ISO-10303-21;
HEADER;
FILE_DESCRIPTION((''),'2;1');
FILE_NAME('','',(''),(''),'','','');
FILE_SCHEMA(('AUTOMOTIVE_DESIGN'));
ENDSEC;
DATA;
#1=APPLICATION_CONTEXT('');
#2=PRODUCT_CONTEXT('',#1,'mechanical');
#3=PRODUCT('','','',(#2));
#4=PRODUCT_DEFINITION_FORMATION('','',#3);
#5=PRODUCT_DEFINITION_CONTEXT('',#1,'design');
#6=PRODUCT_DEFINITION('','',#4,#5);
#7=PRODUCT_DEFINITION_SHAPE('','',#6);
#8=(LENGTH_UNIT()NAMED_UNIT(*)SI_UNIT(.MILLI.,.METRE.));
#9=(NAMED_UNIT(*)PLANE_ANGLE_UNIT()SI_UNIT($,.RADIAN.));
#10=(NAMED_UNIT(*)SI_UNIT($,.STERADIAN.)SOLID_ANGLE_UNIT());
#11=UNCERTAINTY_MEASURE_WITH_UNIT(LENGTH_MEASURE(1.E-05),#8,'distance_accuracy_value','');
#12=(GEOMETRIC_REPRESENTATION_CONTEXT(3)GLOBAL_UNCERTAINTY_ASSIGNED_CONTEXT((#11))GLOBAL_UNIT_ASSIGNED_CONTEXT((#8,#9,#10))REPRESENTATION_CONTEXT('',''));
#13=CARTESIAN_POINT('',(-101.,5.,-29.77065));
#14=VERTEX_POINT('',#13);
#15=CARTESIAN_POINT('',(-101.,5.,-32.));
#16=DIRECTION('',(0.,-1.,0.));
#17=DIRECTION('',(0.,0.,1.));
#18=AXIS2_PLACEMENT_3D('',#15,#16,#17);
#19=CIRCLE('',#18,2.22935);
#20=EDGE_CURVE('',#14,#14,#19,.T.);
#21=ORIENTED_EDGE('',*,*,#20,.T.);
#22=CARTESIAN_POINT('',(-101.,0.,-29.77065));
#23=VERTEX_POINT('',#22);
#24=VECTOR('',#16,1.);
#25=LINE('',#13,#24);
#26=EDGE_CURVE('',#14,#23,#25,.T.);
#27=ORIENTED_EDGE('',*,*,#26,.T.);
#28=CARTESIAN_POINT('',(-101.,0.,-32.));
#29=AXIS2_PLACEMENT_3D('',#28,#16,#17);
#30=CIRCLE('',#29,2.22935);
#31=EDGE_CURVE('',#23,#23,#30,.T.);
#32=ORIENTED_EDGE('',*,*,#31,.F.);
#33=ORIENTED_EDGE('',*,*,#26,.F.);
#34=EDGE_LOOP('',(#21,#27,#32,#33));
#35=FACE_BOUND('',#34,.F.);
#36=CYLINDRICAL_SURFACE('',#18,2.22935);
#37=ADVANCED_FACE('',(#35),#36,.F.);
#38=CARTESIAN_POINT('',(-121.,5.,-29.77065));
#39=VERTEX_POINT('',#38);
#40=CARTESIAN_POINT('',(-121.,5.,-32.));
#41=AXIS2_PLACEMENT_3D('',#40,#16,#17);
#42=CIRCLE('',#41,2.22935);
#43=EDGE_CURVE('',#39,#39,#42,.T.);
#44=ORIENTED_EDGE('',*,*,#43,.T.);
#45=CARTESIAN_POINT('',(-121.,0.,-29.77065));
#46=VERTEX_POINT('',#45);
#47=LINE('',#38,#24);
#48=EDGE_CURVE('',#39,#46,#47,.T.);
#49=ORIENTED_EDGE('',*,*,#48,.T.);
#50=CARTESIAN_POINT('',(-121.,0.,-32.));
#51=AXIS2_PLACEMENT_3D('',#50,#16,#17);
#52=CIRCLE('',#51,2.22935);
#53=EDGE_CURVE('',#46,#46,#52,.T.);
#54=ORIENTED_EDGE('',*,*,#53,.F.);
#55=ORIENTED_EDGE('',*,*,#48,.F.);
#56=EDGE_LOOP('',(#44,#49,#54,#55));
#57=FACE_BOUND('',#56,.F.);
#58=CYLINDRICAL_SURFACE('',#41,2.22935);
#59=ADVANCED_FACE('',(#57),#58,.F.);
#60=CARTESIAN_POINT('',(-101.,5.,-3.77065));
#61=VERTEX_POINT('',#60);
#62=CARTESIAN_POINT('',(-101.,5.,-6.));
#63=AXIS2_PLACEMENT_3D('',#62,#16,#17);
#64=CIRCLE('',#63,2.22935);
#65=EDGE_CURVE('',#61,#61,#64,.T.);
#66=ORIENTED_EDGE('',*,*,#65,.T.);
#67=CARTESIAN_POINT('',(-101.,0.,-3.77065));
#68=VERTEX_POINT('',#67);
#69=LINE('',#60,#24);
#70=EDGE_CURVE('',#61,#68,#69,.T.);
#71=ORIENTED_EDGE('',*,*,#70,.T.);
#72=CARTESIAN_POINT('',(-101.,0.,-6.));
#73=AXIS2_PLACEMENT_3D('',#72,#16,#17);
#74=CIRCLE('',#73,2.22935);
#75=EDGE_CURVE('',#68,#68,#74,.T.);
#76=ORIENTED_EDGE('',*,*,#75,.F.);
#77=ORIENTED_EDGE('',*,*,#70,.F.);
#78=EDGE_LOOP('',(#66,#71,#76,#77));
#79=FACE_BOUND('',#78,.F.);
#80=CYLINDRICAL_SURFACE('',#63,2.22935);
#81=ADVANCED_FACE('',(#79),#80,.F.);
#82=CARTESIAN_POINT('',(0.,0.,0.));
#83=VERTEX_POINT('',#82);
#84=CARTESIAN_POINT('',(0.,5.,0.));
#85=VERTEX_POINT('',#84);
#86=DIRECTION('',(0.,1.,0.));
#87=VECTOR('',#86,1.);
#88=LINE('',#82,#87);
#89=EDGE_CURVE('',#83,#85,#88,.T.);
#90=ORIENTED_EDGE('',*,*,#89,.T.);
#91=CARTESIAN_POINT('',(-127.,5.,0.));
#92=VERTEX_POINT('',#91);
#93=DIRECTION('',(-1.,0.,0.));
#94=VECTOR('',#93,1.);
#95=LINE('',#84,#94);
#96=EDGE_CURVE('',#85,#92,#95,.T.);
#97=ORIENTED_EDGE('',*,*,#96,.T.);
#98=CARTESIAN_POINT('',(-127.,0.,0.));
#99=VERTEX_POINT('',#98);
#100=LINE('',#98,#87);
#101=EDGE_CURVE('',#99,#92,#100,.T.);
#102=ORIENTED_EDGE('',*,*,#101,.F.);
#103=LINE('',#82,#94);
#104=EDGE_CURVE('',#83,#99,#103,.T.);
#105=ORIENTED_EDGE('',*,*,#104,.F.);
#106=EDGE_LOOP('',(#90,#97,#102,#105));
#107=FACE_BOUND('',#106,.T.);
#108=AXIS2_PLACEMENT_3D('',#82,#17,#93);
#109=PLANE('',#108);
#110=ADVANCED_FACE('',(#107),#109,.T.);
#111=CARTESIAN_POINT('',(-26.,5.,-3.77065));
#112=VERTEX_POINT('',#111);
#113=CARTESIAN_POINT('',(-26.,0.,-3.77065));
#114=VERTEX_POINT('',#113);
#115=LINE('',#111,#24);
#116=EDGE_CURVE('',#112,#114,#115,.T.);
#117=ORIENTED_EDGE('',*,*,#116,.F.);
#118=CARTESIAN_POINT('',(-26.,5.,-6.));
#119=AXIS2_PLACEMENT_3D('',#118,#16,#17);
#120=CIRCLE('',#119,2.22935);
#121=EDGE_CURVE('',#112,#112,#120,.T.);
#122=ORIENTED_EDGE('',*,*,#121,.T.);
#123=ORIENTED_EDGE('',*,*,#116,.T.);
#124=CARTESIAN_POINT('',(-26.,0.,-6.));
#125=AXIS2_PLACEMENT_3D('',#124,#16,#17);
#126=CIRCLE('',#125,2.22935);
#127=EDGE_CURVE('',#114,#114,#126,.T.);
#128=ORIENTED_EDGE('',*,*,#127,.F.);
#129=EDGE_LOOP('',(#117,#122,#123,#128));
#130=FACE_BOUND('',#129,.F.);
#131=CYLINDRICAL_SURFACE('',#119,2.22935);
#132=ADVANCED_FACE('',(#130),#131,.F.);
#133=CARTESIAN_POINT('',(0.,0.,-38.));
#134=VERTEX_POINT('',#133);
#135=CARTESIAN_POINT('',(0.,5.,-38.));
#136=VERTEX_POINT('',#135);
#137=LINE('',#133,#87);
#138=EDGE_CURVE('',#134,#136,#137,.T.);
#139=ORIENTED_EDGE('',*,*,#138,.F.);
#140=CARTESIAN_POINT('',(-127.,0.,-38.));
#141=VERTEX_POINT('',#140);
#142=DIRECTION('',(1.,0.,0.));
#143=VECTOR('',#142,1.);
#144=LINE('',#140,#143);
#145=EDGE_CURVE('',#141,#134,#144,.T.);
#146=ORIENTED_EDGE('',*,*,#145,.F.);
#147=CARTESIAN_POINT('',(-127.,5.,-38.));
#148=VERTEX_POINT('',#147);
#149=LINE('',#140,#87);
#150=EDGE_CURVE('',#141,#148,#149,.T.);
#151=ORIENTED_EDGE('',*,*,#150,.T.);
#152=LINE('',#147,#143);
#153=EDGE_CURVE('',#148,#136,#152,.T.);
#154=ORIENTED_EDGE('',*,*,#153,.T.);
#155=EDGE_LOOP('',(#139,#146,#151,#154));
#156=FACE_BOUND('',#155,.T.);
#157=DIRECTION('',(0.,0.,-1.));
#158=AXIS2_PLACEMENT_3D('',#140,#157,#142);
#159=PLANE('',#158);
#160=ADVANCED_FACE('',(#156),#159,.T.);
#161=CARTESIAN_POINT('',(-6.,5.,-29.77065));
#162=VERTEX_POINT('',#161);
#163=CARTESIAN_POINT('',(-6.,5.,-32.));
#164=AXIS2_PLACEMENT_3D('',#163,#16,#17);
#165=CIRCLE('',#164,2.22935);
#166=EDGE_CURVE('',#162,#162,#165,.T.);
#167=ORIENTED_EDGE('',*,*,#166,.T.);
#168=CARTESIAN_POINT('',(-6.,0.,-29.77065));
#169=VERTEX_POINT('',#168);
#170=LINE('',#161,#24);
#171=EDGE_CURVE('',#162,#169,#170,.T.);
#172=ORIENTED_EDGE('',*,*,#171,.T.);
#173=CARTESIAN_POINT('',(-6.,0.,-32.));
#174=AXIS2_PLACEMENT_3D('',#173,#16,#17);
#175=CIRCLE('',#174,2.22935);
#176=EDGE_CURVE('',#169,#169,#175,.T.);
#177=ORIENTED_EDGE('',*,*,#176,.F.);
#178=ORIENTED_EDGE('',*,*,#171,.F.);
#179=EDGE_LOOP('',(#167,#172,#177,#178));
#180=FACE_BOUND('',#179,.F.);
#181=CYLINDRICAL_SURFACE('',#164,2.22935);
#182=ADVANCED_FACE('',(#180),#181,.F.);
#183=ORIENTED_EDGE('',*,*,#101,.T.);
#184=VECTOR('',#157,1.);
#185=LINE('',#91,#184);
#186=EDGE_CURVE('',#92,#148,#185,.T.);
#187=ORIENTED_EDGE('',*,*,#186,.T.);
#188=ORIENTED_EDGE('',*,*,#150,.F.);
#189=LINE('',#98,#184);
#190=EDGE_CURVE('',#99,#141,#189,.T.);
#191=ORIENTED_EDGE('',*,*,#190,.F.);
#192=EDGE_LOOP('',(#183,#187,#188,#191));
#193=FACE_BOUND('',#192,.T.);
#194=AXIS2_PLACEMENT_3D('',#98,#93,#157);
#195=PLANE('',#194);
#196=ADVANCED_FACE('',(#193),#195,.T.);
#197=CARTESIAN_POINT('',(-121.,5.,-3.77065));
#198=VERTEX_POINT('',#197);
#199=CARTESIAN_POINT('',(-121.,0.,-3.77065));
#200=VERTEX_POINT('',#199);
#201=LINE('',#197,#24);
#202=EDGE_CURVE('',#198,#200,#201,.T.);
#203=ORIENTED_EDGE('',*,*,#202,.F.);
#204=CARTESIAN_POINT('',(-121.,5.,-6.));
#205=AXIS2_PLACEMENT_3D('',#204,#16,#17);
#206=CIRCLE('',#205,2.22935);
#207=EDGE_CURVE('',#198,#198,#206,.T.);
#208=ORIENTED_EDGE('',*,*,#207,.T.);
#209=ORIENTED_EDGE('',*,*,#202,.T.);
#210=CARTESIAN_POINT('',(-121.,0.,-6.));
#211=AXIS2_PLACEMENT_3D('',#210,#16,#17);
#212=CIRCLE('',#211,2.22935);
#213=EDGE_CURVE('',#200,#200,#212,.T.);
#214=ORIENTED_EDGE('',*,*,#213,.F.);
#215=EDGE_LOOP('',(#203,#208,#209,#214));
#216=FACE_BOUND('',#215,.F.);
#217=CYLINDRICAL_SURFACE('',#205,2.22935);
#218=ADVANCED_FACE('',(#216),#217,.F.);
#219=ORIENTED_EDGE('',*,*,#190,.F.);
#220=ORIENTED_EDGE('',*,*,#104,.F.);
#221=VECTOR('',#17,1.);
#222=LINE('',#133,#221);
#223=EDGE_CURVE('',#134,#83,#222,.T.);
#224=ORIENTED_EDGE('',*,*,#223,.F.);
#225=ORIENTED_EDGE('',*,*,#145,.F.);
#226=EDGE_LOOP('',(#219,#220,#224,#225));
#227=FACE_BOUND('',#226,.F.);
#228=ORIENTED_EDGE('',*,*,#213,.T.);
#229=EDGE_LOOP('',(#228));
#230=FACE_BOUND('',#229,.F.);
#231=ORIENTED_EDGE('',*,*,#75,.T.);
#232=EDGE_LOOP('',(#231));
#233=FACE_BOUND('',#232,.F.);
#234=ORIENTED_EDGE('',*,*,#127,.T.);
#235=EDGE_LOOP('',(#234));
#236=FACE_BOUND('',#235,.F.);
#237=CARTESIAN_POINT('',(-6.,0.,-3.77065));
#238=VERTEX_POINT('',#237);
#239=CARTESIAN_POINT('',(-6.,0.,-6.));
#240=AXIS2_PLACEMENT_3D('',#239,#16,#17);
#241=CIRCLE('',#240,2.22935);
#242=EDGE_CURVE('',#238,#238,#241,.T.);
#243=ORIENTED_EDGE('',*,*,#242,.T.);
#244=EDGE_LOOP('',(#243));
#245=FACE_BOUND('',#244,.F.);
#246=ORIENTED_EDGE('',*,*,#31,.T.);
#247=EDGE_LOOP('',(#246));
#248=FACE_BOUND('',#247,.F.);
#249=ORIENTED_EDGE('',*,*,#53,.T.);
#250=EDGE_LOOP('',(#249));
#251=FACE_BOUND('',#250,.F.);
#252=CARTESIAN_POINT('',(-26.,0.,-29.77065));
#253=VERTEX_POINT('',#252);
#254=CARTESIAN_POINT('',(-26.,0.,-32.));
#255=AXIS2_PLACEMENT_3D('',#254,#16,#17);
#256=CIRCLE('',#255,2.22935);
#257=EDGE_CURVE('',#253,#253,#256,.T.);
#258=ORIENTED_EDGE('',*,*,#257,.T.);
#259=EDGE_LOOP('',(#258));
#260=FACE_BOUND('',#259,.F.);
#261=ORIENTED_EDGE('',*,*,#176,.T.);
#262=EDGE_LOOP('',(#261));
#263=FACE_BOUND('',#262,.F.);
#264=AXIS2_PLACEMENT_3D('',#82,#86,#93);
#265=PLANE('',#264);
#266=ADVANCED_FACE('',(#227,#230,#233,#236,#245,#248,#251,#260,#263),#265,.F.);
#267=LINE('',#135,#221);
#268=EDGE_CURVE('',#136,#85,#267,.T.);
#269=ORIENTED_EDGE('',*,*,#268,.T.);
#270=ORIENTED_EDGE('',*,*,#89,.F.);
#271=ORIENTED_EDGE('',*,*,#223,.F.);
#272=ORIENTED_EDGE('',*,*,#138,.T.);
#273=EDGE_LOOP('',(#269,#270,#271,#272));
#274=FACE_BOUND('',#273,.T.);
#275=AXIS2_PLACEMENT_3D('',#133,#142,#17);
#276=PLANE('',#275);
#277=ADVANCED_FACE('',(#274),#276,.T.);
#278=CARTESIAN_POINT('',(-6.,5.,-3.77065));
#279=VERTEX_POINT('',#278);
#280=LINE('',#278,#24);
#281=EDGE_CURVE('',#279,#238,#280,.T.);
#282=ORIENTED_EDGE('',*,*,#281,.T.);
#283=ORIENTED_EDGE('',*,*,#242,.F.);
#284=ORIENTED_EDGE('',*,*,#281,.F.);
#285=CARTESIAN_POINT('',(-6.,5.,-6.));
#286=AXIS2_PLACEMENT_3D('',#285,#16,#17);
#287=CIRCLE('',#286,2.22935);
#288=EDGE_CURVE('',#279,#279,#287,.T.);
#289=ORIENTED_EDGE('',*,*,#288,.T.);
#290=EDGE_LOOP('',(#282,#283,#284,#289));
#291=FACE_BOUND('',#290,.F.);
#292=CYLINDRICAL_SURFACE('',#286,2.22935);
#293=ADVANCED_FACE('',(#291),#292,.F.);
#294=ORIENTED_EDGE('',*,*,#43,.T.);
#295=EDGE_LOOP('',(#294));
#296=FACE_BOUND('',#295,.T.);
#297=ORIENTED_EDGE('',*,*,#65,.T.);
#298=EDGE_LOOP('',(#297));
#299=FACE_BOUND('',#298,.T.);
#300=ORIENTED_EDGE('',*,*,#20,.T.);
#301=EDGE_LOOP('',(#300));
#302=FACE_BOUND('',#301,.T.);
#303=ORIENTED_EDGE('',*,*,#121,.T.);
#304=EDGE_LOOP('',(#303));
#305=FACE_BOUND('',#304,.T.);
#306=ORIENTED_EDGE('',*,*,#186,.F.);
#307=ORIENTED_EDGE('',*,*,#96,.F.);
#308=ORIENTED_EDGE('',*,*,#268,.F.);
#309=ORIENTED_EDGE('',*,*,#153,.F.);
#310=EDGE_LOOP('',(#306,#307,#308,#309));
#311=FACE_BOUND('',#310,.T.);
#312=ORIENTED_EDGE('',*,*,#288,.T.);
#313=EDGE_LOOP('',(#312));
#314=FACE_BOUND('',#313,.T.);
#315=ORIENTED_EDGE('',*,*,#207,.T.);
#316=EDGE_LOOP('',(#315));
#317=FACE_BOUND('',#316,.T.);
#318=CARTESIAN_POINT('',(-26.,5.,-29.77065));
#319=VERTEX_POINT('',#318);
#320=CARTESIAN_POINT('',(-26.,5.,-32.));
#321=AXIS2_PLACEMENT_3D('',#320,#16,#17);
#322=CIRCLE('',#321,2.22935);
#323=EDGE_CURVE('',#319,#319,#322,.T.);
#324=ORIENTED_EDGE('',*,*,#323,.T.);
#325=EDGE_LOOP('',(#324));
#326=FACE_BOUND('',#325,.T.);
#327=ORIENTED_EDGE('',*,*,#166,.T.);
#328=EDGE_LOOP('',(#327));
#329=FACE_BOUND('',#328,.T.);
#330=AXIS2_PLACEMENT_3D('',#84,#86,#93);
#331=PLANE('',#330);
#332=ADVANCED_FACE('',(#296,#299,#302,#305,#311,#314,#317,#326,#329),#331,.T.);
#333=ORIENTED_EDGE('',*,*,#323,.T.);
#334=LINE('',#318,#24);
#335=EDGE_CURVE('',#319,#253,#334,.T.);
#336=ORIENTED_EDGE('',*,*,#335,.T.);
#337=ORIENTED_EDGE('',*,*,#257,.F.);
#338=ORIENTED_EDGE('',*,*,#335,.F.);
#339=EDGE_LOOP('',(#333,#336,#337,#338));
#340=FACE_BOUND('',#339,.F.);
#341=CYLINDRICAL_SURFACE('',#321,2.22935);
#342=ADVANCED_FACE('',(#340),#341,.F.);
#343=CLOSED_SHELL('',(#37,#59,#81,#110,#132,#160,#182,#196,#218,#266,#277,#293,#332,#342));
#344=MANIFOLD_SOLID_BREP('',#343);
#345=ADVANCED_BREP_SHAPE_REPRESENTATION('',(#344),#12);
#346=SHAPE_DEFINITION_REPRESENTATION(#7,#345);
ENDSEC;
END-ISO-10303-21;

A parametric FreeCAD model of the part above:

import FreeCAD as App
import Part
import Sketcher

doc = App.newDocument("Part")
body = doc.addObject("PartDesign::Body", "Body")

sketch1 = doc.addObject("Sketcher::SketchObject", "Sketch")
body.addObject(sketch1)
sketch1.AttachmentSupport = (doc.XZ_Plane, [""])
sketch1.MapMode = "FlatFace"
sketch1.addGeometry(Part.LineSegment(App.Vector(-127, 0, 0), App.Vector(0, 0, 0)), False)
sketch1.addGeometry(Part.LineSegment(App.Vector(0, 0, 0), App.Vector(0, -38, 0)), False)
sketch1.addGeometry(Part.LineSegment(App.Vector(0, -38, 0), App.Vector(-127, -38, 0)), False)
sketch1.addGeometry(Part.LineSegment(App.Vector(-127, -38, 0), App.Vector(-127, 0, 0)), False)
sketch1.addConstraint(Sketcher.Constraint("Coincident", 0, 2, 1, 1))
sketch1.addConstraint(Sketcher.Constraint("Coincident", 1, 2, 2, 1))
sketch1.addConstraint(Sketcher.Constraint("Coincident", 2, 2, 3, 1))
sketch1.addConstraint(Sketcher.Constraint("Coincident", 3, 2, 0, 1))
sketch1.addConstraint(Sketcher.Constraint("Horizontal", 0))
sketch1.addConstraint(Sketcher.Constraint("Vertical", 1))
sketch1.addConstraint(Sketcher.Constraint("Horizontal", 2))
sketch1.addConstraint(Sketcher.Constraint("Vertical", 3))
sketch1.addConstraint(Sketcher.Constraint("Coincident", 0, 2, -1, 1))
sketch1.addConstraint(Sketcher.Constraint("DistanceX", 0, 1, 0, 2, 127.0))
sketch1.addConstraint(Sketcher.Constraint("DistanceY", 1, 2, 1, 1, 38.0))
pad1 = doc.addObject("PartDesign::Pad", "Pad")
body.addObject(pad1)
pad1.Profile = sketch1
pad1.Length = 5
pad1.Reversed = True

sketch2 = doc.addObject("Sketcher::SketchObject", "Sketch001")
body.addObject(sketch2)
sketch2.AttachmentSupport = (doc.XZ_Plane, [""])
sketch2.MapMode = "FlatFace"
sketch2.AttachmentOffset = App.Placement(App.Vector(0, 0, -5), App.Rotation())
sketch2.addGeometry(Part.Circle(App.Vector(-121, -6, 0), App.Vector(0, 0, 1), 2.2), False)
sketch2.addGeometry(Part.Circle(App.Vector(-101, -6, 0), App.Vector(0, 0, 1), 2.2), False)
sketch2.addGeometry(Part.Circle(App.Vector(-101, -32, 0), App.Vector(0, 0, 1), 2.2), False)
sketch2.addGeometry(Part.Circle(App.Vector(-121, -32, 0), App.Vector(0, 0, 1), 2.2), False)
sketch2.addGeometry(Part.Circle(App.Vector(-26, -6, 0), App.Vector(0, 0, 1), 2.2), False)
sketch2.addGeometry(Part.Circle(App.Vector(-6, -6, 0), App.Vector(0, 0, 1), 2.2), False)
sketch2.addGeometry(Part.Circle(App.Vector(-26, -32, 0), App.Vector(0, 0, 1), 2.2), False)
sketch2.addGeometry(Part.Circle(App.Vector(-6, -32, 0), App.Vector(0, 0, 1), 2.2), False)
sketch2.addConstraint(Sketcher.Constraint("Equal", 0, 1))
sketch2.addConstraint(Sketcher.Constraint("Equal", 1, 2))
sketch2.addConstraint(Sketcher.Constraint("Equal", 2, 3))
sketch2.addConstraint(Sketcher.Constraint("Equal", 3, 4))
sketch2.addConstraint(Sketcher.Constraint("Equal", 4, 5))
sketch2.addConstraint(Sketcher.Constraint("Equal", 5, 6))
sketch2.addConstraint(Sketcher.Constraint("Equal", 6, 7))
sketch2.addConstraint(Sketcher.Constraint("Horizontal", 0, 3, 1, 3))
sketch2.addConstraint(Sketcher.Constraint("Horizontal", 2, 3, 3, 3))
sketch2.addConstraint(Sketcher.Constraint("Horizontal", 1, 3, 4, 3))
sketch2.addConstraint(Sketcher.Constraint("Horizontal", 4, 3, 5, 3))
sketch2.addConstraint(Sketcher.Constraint("Horizontal", 3, 3, 6, 3))
sketch2.addConstraint(Sketcher.Constraint("Horizontal", 6, 3, 7, 3))
sketch2.addConstraint(Sketcher.Constraint("Vertical", 1, 3, 2, 3))
sketch2.addConstraint(Sketcher.Constraint("Vertical", 0, 3, 3, 3))
sketch2.addConstraint(Sketcher.Constraint("Vertical", 4, 3, 6, 3))
sketch2.addConstraint(Sketcher.Constraint("Vertical", 5, 3, 7, 3))
sketch2.addConstraint(Sketcher.Constraint("DistanceX", 0, 3, -1, 1, 121.0))
sketch2.addConstraint(Sketcher.Constraint("DistanceY", 0, 3, -1, 1, 6.0))
sketch2.addConstraint(Sketcher.Constraint("DistanceX", 1, 3, -1, 1, 101.0))
sketch2.addConstraint(Sketcher.Constraint("DistanceY", 2, 3, -1, 1, 32.0))
sketch2.addConstraint(Sketcher.Constraint("DistanceX", 4, 3, -1, 1, 26.0))
sketch2.addConstraint(Sketcher.Constraint("DistanceX", 5, 3, -1, 1, 6.0))
sketch2.addConstraint(Sketcher.Constraint("Diameter", 0, 4.4587))
doc.recompute()
hole = doc.addObject("PartDesign::Hole", "Hole")
body.addObject(hole)
hole.Profile = sketch2
hole.ThreadType = "None"
hole.Diameter = 4.4587
hole.DepthType = "Dimension"
hole.Depth = 40
hole.DrillPoint = "Angled"
hole.DrillPointAngle = 118
hole.Reversed = True

doc.recompute()
